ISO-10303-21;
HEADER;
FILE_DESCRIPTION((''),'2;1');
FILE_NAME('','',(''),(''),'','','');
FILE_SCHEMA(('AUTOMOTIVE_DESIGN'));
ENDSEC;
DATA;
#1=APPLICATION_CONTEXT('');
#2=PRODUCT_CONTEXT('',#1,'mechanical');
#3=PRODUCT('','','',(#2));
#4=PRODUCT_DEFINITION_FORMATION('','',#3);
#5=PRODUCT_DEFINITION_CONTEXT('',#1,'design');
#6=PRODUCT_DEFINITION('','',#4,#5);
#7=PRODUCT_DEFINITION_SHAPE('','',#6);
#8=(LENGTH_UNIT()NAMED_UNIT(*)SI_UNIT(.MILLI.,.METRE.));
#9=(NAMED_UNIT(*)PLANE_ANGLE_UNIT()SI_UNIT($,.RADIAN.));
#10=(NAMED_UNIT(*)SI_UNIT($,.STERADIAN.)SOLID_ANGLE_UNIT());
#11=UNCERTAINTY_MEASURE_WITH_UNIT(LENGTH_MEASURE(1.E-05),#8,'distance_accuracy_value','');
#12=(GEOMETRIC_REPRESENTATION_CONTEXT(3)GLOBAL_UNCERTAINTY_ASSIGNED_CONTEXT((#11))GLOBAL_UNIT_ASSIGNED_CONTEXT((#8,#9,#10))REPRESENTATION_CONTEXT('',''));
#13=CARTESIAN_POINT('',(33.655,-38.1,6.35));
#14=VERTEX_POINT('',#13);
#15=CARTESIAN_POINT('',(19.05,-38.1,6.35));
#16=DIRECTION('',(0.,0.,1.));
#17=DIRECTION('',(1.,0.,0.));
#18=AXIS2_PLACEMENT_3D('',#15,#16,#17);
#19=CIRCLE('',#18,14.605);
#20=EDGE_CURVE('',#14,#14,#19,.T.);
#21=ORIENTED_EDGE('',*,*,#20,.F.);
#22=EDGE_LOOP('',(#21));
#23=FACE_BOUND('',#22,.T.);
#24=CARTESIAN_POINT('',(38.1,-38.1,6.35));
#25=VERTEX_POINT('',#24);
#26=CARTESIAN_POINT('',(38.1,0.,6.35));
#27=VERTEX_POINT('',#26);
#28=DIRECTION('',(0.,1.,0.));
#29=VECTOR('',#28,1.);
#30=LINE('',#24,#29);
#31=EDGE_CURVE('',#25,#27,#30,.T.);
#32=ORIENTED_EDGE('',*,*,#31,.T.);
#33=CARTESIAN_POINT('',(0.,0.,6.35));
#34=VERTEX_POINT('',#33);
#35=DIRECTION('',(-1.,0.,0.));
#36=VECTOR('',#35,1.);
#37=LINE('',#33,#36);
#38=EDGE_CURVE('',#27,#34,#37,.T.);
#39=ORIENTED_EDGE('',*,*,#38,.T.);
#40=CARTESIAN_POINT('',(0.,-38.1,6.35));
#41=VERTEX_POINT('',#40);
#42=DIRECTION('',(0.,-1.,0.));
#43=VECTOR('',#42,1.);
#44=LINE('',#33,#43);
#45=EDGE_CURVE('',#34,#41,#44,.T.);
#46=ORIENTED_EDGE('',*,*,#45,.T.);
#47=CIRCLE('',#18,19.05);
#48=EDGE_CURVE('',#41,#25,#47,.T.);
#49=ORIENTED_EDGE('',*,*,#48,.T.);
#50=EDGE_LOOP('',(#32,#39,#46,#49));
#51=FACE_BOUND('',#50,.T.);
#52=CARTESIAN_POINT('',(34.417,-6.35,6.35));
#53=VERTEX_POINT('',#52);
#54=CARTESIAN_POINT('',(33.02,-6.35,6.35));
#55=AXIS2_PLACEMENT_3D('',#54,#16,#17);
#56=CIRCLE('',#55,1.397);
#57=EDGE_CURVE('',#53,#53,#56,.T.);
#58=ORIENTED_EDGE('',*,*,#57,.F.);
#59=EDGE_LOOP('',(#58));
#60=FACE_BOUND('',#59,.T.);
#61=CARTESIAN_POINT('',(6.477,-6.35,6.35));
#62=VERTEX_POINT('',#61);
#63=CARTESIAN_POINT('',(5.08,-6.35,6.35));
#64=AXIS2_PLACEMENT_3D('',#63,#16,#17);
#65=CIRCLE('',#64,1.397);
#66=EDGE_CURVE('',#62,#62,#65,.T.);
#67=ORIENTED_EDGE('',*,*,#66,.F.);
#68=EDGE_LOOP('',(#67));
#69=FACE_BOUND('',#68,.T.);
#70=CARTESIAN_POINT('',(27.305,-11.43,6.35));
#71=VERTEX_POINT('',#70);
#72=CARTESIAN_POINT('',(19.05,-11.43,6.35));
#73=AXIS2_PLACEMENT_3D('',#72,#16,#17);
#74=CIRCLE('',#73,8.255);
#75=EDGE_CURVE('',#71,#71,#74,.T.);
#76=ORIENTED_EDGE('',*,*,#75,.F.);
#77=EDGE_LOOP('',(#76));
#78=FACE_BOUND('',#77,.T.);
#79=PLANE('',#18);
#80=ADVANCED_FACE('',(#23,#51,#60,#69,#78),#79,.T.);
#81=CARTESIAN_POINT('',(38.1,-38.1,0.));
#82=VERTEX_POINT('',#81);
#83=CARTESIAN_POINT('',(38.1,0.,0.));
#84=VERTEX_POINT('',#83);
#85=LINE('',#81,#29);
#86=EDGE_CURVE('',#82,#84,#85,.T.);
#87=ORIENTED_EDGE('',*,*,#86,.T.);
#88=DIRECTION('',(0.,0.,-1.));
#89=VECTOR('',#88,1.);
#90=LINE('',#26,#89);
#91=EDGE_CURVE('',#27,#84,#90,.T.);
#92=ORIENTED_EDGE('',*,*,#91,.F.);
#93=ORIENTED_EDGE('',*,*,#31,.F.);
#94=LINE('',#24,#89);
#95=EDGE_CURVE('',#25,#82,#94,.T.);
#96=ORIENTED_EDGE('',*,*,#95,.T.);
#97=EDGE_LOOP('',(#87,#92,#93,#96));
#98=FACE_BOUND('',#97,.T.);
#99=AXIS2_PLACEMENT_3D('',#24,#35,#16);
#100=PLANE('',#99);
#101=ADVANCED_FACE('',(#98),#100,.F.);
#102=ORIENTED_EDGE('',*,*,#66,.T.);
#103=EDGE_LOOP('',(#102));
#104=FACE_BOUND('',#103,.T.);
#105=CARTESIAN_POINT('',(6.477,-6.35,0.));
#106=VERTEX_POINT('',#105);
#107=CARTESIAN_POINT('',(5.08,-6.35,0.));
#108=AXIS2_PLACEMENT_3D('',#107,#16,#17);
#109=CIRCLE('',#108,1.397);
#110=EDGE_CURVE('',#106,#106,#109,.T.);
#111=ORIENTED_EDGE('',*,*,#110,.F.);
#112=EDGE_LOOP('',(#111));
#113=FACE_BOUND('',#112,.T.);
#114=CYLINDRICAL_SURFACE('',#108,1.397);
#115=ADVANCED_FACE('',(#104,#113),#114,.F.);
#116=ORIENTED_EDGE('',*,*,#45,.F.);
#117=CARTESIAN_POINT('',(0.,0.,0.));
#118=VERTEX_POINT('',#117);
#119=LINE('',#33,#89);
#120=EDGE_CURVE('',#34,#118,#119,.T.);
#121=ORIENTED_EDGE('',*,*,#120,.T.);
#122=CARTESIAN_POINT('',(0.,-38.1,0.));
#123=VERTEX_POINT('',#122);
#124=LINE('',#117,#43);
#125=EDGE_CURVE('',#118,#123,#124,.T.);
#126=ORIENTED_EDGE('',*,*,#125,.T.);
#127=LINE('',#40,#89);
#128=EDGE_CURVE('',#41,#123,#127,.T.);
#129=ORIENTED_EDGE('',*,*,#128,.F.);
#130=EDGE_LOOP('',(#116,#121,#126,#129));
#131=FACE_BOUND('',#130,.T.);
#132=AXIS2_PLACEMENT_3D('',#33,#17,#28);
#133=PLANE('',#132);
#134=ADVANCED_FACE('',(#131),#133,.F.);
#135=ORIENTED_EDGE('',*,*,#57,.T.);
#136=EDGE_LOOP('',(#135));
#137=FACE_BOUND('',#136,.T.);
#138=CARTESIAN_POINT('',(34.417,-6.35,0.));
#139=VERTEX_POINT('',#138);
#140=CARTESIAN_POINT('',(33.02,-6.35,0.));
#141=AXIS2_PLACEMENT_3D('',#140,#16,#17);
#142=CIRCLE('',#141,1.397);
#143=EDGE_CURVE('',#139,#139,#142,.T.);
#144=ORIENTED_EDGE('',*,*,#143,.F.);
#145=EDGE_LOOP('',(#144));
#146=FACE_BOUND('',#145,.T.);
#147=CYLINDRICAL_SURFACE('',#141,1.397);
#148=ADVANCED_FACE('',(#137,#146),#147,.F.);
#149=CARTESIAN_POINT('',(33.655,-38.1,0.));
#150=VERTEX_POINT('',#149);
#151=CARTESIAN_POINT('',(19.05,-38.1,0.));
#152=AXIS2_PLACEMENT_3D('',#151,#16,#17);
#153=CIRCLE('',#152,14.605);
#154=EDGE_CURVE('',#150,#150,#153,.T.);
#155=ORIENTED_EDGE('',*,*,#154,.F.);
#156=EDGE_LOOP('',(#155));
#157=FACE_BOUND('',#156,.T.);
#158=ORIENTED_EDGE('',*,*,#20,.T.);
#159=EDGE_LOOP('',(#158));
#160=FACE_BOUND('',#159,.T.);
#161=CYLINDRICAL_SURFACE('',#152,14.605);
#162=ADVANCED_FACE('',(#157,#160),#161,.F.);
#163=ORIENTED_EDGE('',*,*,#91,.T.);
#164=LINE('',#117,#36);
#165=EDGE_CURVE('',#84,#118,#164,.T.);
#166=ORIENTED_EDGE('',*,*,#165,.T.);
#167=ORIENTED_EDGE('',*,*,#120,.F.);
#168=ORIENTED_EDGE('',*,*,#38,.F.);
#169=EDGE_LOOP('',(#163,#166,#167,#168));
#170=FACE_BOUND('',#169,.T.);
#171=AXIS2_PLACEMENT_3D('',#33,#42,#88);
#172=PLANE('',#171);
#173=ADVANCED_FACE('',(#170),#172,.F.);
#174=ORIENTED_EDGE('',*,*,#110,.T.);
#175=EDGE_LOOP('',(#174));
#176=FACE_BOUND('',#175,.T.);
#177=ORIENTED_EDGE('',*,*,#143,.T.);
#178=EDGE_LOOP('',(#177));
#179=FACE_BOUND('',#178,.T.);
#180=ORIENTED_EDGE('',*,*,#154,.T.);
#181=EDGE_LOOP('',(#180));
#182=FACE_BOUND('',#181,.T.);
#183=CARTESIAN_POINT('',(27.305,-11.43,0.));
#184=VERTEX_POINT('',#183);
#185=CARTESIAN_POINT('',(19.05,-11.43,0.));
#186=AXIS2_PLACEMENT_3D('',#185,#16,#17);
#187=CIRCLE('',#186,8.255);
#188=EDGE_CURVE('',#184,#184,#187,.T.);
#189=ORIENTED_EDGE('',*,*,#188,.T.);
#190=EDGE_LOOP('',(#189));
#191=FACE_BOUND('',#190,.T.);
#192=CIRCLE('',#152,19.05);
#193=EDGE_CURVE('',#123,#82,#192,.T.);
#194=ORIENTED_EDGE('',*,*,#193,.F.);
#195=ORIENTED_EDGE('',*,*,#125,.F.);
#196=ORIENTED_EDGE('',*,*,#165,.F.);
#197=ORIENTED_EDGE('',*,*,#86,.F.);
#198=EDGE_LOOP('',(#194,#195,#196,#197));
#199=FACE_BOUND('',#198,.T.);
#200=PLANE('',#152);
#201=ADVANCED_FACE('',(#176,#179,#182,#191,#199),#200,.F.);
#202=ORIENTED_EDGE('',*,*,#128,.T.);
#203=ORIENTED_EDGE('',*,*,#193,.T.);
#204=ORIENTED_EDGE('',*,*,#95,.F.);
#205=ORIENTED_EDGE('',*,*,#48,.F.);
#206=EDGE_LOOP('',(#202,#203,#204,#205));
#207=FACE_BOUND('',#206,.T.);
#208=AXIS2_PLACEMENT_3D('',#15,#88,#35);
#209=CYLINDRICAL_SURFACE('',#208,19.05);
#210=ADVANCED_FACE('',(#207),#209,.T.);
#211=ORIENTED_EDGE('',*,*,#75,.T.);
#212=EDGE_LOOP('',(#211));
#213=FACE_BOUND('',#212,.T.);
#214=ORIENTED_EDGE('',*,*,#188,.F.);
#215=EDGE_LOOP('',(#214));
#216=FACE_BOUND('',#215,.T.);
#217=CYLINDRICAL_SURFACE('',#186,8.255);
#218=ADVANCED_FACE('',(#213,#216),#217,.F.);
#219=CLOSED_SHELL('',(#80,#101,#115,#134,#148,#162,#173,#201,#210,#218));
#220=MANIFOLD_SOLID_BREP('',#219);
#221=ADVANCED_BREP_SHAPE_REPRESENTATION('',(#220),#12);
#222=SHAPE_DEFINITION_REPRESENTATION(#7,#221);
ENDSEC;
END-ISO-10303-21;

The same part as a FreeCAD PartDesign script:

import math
import FreeCAD as App
import Part
import Sketcher
Q = App.Units.Quantity

doc = App.newDocument("Part")
body = doc.addObject("PartDesign::Body", "Body")

# Sketch on XY plane
sketch1 = body.newObject("Sketcher::SketchObject", "Sketch")
sketch1.AttachmentSupport = (doc.getObject("XY_Plane"), [""])
sketch1.MapMode = "FlatFace"
sketch1.addGeometry([
    Part.LineSegment(App.Vector(38, 0, 0), App.Vector(0, 0, 0)),
    Part.LineSegment(App.Vector(0, 0, 0), App.Vector(0, -38, 0)),
    Part.ArcOfCircle(Part.Circle(App.Vector(19, -38, 0), App.Vector(0, 0, 1), 19), math.radians(180), math.radians(360)),
    Part.LineSegment(App.Vector(38, -38, 0), App.Vector(38, 0, 0)),
], False)
sketch1.addConstraint([
    Sketcher.Constraint("Coincident", 0, 2, 1, 1),
    Sketcher.Constraint("Tangent", 1, 2, 2, 1),
    Sketcher.Constraint("Tangent", 2, 2, 3, 1),
    Sketcher.Constraint("Coincident", 3, 2, 0, 1),
    Sketcher.Constraint("Horizontal", 0),
    Sketcher.Constraint("Vertical", 1),
    Sketcher.Constraint("Vertical", 3),
    Sketcher.Constraint("Coincident", 0, 2, -1, 1),
    Sketcher.Constraint("Equal", 0, 1),
    Sketcher.Constraint("Radius", 2, Q("0.75 in")),
])
pad1 = body.newObject("PartDesign::Pad", "Pad")
pad1.Profile = sketch1
pad1.Length = Q("0.25 in")

# Sketch on XY plane
sketch2 = body.newObject("Sketcher::SketchObject", "Sketch001")
sketch2.AttachmentSupport = (doc.getObject("XY_Plane"), [""])
sketch2.MapMode = "FlatFace"
sketch2.AttachmentOffset = App.Placement(App.Vector(0, 0, 0.25 * 25.4), App.Rotation())
sketch2.addGeometry(Part.Circle(App.Vector(19, -38, 0), App.Vector(0, 0, 1), 15), False)
sketch2.addConstraint([
    Sketcher.Constraint("Diameter", 0, Q("1.15 in")),
    Sketcher.Constraint("DistanceY", 0, 3, -1, 1, Q("1.5 in")),
    Sketcher.Constraint("DistanceX", -1, 1, 0, 3, Q("0.75 in")),
])
pocket1 = body.newObject("PartDesign::Pocket", "Pocket")
pocket1.Profile = sketch2
pocket1.Length = Q("0.25 in")

# Sketch on XY plane
sketch3 = body.newObject("Sketcher::SketchObject", "Sketch002")
sketch3.AttachmentSupport = (doc.getObject("XY_Plane"), [""])
sketch3.MapMode = "FlatFace"
sketch3.AttachmentOffset = App.Placement(App.Vector(0, 0, 0.25 * 25.4), App.Rotation())
sketch3.addGeometry(Part.Circle(App.Vector(19, -11, 0), App.Vector(0, 0, 1), 8), False)
sketch3.addConstraint([
    Sketcher.Constraint("Diameter", 0, Q("0.65 in")),
    Sketcher.Constraint("DistanceX", -1, 1, 0, 3, Q("0.75 in")),
    Sketcher.Constraint("DistanceY", 0, 3, -1, 1, Q("0.45 in")),
])
pocket2 = body.newObject("PartDesign::Pocket", "Pocket001")
pocket2.Profile = sketch3
pocket2.Length = Q("0.25 in")

# Sketch on XY plane
sketch4 = body.newObject("Sketcher::SketchObject", "Sketch003")
sketch4.AttachmentSupport = (doc.getObject("XY_Plane"), [""])
sketch4.MapMode = "FlatFace"
sketch4.AttachmentOffset = App.Placement(App.Vector(0, 0, 0.25 * 25.4), App.Rotation())
sketch4.addGeometry([
    Part.Circle(App.Vector(5.1, -6.3, 0), App.Vector(0, 0, 1), 1.4),
    Part.Circle(App.Vector(33, -6.3, 0), App.Vector(0, 0, 1), 1.4),
], False)
sketch4.addConstraint([
    Sketcher.Constraint("Equal", 0, 1),
    Sketcher.Constraint("Horizontal", 0, 3, 1, 3),
    Sketcher.Constraint("Diameter", 0, Q("0.11 in")),
    Sketcher.Constraint("DistanceX", -1, 1, 0, 3, Q("0.2 in")),
    Sketcher.Constraint("DistanceX", -1, 1, 1, 3, Q("1.3 in")),
    Sketcher.Constraint("DistanceY", 0, 3, -1, 1, Q("0.25 in")),
])
pocket3 = body.newObject("PartDesign::Pocket", "Pocket002")
pocket3.Profile = sketch4
pocket3.Length = Q("0.25 in")

doc.recompute()
